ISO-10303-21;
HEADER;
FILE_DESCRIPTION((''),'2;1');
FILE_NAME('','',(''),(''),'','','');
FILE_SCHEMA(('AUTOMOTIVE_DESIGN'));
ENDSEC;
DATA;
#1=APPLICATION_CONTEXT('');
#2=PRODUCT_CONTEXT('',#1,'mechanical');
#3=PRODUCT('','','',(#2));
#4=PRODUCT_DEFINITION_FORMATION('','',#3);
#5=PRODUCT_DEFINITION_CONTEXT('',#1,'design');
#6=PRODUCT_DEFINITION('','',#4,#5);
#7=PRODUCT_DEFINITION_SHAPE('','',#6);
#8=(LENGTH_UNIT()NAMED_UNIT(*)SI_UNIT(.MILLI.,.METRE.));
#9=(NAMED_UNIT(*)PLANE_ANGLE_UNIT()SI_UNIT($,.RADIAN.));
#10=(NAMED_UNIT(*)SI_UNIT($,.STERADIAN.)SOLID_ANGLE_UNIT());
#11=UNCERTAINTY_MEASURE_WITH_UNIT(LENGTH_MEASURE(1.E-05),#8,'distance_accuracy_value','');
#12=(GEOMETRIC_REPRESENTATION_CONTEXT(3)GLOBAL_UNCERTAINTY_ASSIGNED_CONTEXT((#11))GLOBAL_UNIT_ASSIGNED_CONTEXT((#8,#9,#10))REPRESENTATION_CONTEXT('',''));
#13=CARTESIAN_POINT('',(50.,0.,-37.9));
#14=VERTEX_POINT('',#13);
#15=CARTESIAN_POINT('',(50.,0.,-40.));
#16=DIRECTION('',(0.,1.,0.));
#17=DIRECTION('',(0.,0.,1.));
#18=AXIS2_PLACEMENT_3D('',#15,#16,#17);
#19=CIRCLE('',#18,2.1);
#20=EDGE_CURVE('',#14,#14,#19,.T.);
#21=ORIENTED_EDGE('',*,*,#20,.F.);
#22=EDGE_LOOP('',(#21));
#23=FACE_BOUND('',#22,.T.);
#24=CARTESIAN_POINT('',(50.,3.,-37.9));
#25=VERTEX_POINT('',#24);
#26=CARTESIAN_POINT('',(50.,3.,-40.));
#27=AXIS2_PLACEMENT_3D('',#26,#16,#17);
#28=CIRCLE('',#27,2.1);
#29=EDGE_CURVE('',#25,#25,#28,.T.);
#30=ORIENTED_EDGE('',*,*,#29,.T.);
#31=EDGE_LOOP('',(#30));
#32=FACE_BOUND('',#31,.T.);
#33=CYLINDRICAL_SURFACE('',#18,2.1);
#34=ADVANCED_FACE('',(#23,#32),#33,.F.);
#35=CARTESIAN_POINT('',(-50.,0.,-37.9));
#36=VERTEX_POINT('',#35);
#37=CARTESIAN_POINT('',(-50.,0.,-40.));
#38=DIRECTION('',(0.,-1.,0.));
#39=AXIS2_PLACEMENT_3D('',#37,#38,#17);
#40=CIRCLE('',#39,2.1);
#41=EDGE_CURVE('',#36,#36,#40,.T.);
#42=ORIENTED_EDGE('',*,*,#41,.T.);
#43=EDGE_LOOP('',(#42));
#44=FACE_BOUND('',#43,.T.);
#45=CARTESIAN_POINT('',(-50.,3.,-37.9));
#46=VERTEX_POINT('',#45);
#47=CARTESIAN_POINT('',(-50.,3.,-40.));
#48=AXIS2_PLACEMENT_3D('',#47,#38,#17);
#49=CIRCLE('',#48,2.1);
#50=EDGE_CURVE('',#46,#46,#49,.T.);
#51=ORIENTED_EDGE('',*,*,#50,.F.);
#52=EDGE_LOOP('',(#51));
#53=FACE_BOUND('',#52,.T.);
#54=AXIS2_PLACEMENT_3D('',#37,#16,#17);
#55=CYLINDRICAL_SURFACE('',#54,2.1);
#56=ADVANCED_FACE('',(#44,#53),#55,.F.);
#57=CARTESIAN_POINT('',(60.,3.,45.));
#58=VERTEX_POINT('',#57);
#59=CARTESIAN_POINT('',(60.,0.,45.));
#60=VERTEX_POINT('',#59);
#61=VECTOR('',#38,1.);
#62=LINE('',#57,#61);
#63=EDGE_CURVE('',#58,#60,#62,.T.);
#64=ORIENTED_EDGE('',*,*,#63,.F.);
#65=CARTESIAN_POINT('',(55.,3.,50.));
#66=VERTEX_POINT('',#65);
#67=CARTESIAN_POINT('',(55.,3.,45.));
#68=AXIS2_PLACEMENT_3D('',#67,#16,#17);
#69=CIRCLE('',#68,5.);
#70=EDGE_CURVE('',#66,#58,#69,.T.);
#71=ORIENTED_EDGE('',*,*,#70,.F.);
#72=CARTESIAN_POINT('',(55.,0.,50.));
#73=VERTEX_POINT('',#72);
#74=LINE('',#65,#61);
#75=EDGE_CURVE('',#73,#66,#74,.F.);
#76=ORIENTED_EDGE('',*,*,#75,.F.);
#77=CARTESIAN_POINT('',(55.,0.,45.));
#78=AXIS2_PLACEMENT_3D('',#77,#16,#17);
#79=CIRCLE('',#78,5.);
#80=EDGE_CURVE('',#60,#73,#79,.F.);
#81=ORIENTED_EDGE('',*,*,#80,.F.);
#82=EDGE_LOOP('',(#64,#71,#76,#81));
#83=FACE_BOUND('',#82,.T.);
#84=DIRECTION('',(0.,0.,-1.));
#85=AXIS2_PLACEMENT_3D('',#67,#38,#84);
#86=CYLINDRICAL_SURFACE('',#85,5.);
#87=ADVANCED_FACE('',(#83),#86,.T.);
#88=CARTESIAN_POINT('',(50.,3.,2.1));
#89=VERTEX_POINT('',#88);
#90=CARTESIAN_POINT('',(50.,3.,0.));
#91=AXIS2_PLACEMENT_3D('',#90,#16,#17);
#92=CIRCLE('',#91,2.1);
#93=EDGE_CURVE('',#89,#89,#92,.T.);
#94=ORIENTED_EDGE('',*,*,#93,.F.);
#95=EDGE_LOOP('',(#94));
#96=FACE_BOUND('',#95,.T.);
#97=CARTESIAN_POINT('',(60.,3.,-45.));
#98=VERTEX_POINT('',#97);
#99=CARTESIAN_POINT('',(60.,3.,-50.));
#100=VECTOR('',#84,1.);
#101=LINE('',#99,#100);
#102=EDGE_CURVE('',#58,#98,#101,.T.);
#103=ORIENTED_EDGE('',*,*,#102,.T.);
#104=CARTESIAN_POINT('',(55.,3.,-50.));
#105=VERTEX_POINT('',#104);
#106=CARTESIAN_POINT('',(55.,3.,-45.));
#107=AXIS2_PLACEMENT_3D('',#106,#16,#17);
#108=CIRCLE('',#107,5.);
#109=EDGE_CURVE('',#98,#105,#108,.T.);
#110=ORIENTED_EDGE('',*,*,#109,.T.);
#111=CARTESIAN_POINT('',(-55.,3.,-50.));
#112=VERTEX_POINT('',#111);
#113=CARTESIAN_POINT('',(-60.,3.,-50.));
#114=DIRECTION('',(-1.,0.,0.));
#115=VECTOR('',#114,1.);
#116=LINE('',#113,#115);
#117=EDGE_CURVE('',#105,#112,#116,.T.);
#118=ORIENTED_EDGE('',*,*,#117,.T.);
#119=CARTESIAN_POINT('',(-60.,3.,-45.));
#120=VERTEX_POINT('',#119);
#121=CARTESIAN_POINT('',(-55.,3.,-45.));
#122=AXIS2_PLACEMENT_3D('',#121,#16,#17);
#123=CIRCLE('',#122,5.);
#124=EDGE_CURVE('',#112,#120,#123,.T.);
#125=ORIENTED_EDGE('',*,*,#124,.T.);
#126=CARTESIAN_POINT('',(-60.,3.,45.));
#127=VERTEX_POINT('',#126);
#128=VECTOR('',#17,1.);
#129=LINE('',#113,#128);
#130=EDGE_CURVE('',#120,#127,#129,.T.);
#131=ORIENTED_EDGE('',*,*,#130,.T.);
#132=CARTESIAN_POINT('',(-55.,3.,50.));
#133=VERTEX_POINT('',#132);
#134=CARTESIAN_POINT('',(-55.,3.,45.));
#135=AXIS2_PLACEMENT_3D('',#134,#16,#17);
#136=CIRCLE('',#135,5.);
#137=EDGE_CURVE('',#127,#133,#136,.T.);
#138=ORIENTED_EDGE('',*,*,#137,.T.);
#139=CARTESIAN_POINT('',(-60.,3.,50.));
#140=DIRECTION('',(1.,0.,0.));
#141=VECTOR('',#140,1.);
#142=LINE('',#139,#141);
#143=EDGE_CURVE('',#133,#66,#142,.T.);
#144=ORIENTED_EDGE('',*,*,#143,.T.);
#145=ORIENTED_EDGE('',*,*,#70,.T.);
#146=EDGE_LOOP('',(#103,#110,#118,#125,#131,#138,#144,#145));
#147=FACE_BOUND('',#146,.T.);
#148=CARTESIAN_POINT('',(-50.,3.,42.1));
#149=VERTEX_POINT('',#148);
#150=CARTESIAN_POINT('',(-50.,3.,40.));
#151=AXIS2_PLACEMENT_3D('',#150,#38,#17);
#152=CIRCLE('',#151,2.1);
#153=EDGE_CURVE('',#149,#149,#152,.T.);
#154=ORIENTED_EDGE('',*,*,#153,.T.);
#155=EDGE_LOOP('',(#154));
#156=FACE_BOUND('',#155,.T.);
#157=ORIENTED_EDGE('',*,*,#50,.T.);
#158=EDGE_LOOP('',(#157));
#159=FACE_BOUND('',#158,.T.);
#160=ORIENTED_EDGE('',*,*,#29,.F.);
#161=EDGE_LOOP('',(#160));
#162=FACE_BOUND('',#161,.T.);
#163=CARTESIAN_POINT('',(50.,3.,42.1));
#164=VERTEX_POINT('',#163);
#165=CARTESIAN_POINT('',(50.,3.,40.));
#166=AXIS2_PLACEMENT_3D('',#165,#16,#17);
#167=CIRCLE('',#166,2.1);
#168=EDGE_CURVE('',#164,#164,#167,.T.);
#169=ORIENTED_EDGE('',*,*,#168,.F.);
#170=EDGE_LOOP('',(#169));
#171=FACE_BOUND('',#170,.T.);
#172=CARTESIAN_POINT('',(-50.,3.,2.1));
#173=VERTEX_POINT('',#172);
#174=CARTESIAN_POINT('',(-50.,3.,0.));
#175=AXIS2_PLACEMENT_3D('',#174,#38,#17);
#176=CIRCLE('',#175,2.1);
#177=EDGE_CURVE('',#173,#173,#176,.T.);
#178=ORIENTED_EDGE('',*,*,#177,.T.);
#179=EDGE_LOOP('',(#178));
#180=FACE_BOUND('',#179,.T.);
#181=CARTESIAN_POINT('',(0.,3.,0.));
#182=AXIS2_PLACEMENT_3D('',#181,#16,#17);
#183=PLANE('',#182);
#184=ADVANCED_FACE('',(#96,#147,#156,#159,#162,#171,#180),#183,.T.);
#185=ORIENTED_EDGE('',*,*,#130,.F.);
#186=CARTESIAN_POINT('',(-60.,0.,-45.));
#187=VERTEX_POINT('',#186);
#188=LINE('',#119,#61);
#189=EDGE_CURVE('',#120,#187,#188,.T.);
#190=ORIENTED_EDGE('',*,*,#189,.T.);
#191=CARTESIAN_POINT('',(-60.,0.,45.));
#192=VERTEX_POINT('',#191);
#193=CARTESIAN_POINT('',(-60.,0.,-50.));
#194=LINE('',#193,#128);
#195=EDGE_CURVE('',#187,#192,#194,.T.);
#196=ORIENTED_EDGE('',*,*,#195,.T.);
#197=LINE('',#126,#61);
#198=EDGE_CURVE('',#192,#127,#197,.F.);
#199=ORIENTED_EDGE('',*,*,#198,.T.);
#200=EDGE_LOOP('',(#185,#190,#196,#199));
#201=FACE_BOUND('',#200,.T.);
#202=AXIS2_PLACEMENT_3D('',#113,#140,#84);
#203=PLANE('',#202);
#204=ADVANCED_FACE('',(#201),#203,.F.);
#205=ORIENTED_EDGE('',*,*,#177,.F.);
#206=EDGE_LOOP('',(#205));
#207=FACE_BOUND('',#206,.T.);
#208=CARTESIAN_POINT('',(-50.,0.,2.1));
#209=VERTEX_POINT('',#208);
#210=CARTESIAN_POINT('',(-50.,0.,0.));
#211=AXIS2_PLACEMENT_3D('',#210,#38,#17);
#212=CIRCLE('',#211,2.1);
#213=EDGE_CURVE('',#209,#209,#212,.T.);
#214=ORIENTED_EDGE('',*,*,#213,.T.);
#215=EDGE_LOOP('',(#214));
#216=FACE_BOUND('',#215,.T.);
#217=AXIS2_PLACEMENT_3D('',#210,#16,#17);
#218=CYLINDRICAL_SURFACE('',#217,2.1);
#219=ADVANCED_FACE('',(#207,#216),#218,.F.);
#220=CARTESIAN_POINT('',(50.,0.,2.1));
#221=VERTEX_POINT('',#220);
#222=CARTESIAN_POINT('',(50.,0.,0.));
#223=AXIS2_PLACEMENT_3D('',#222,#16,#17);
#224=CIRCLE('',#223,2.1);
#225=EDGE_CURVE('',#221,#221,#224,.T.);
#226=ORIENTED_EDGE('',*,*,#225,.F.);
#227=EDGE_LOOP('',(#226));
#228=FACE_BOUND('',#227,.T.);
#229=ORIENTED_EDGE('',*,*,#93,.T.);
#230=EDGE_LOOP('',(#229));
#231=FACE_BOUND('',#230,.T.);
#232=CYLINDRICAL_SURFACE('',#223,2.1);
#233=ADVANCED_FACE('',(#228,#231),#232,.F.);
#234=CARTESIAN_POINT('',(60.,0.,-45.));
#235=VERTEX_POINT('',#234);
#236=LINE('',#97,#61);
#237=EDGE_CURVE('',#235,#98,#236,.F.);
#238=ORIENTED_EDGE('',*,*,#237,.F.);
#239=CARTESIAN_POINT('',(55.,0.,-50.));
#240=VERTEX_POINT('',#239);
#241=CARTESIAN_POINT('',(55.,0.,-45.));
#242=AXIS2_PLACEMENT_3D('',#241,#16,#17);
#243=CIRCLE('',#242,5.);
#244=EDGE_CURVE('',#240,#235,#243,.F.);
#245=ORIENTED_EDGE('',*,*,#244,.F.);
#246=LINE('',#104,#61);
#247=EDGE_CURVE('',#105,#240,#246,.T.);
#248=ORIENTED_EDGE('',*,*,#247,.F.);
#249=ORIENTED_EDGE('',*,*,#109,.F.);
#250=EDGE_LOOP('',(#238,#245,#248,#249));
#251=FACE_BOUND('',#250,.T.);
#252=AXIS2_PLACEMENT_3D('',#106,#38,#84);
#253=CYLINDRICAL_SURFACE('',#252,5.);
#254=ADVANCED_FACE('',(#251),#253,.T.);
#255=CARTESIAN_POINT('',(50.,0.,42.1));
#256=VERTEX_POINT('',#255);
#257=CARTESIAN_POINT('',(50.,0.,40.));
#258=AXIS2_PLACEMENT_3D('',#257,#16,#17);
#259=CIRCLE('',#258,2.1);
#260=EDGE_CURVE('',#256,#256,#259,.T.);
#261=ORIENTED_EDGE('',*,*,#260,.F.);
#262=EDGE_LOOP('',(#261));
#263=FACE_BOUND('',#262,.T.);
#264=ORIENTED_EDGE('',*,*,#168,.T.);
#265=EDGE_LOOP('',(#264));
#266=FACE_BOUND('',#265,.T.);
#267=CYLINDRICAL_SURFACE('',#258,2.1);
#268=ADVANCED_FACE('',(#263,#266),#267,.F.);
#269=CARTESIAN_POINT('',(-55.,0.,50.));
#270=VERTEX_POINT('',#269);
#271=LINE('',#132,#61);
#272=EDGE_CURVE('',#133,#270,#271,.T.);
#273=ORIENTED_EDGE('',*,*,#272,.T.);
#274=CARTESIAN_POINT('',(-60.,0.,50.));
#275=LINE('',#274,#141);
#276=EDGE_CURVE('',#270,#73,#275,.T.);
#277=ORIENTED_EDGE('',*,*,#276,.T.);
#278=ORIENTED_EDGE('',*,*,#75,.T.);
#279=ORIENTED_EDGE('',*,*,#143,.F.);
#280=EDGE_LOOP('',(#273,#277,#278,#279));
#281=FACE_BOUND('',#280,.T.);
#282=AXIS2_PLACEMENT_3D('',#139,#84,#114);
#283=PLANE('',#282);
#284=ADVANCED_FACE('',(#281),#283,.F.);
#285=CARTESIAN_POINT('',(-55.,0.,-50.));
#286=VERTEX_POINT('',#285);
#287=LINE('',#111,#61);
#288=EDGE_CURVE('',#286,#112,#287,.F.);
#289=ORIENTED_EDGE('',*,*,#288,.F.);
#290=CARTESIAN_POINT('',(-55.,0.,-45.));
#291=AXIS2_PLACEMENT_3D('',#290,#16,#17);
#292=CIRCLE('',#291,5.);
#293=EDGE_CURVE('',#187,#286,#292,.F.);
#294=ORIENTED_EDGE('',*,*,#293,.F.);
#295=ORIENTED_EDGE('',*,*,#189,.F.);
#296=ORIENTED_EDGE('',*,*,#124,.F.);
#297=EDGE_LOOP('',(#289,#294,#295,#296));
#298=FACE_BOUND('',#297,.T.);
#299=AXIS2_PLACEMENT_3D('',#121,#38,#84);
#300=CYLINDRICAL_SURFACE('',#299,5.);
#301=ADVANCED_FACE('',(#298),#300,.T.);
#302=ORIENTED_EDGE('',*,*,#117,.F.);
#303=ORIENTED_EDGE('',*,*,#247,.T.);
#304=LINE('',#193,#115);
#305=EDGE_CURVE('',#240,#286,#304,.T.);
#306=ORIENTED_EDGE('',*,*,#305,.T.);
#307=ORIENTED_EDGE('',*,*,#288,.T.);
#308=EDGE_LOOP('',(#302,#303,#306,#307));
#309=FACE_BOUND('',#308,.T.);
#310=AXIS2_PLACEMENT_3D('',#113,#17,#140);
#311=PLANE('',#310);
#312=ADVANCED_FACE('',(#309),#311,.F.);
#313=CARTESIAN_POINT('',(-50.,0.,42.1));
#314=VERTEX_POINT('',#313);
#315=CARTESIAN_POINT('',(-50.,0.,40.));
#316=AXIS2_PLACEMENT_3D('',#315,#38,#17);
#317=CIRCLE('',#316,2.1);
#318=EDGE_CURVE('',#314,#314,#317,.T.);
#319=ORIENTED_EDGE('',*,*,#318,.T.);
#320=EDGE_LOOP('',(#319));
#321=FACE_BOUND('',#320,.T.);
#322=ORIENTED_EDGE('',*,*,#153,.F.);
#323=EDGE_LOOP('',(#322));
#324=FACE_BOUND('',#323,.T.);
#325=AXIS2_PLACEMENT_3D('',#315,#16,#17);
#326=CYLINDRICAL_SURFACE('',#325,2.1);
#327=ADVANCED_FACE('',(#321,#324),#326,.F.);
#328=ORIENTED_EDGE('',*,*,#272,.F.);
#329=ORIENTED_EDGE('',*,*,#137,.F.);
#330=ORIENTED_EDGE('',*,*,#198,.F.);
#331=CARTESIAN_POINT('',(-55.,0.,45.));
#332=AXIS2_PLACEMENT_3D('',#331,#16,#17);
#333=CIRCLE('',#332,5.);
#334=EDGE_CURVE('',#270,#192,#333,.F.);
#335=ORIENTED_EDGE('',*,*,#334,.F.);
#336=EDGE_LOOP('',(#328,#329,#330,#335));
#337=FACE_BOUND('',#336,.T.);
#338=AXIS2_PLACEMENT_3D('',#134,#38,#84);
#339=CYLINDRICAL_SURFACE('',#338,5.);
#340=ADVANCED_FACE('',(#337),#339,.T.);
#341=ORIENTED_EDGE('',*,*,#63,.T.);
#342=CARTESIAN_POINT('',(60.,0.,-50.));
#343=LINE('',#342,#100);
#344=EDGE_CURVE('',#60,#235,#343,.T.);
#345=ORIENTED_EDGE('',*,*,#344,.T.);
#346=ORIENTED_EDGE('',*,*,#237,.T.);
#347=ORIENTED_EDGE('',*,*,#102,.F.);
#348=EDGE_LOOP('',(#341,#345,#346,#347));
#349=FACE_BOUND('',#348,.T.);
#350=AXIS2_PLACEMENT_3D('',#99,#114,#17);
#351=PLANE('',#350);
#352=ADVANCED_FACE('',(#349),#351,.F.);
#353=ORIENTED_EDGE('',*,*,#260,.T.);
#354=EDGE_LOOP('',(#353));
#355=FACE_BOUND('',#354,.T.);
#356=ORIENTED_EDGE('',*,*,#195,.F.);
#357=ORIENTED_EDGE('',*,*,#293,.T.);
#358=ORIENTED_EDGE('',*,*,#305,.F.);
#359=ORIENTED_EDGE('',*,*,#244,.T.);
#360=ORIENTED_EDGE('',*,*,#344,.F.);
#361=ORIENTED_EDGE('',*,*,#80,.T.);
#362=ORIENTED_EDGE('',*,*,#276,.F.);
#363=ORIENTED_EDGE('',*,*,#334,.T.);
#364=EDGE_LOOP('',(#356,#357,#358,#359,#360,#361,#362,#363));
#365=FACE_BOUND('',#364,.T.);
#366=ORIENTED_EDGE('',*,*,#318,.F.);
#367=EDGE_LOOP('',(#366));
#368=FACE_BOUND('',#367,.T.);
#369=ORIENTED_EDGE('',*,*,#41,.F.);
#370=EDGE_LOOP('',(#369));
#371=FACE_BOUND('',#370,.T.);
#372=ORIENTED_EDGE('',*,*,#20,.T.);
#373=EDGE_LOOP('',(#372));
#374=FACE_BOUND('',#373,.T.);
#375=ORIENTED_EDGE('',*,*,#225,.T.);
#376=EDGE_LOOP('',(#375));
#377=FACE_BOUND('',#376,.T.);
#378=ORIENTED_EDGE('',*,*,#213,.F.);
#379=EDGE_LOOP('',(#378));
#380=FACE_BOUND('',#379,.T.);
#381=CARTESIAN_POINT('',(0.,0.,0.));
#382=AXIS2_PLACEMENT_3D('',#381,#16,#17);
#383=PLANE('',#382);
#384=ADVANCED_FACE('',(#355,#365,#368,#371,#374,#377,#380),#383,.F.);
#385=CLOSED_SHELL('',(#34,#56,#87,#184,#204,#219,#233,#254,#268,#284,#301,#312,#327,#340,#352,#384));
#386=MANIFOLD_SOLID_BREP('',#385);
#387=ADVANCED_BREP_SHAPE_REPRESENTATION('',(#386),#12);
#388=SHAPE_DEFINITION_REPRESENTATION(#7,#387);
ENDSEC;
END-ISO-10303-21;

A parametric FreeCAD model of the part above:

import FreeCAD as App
import Part
import Sketcher
from FreeCAD import Vector
Q = App.Units.Quantity


def edges_at(feature, points):
    """Names of the edges that pass closest to the given points."""
    edges = feature.Shape.Edges
    near = lambda p: min(range(len(edges)), key=lambda i: edges[i].distToShape(Part.Vertex(*p))[0])
    return sorted({f"Edge{near(p) + 1}" for p in points})

doc = App.newDocument("Part")
body = doc.addObject("PartDesign::Body", "Body")

# Sketch on XZ plane
sketch1 = body.newObject("Sketcher::SketchObject", "Sketch")
sketch1.AttachmentSupport = (doc.getObject("XZ_Plane"), [""])
sketch1.MapMode = "FlatFace"
sketch1.addGeometry([
    Part.LineSegment(Vector(-60, -50, 0), Vector(-60, 50, 0)),
    Part.LineSegment(Vector(-60, 50, 0), Vector(60, 50, 0)),
    Part.LineSegment(Vector(60, 50, 0), Vector(60, -50, 0)),
    Part.LineSegment(Vector(60, -50, 0), Vector(-60, -50, 0)),
], False)
sketch1.addConstraint([
    Sketcher.Constraint("Coincident", 0, 2, 1, 1),
    Sketcher.Constraint("Coincident", 1, 2, 2, 1),
    Sketcher.Constraint("Coincident", 2, 2, 3, 1),
    Sketcher.Constraint("Coincident", 3, 2, 0, 1),
    Sketcher.Constraint("Vertical", 0),
    Sketcher.Constraint("Horizontal", 1),
    Sketcher.Constraint("Vertical", 2),
    Sketcher.Constraint("Horizontal", 3),
    Sketcher.Constraint("Symmetric", 0, 2, 2, 2, -1, 1),
    Sketcher.Constraint("DistanceX", 1, 1, 1, 2, Q("120 mm")),
    Sketcher.Constraint("DistanceY", 0, 1, 0, 2, Q("100 mm")),
])
pad1 = body.newObject("PartDesign::Pad", "Pad")
pad1.Profile = sketch1
pad1.Length = 3
pad1.Reversed = True
doc.recompute()

fillet = body.newObject("PartDesign::Fillet", "Fillet")
fillet.Base = (pad1, edges_at(pad1, [
    (60, 1.5, 50),
    (-60, 1.5, 50),
    (-60, 1.5, -50),
    (60, 1.5, -50),
]))
fillet.Radius = 5

# Sketch on XZ plane
sketch2 = body.newObject("Sketcher::SketchObject", "Sketch001")
sketch2.AttachmentSupport = (doc.getObject("XZ_Plane"), [""])
sketch2.MapMode = "FlatFace"
sketch2.AttachmentOffset = App.Placement(Vector(0, 0, -3), App.Rotation())
sketch2.addGeometry(Part.Circle(Vector(50, -40, 0), Vector(0, 0, 1), 2.1), False)
sketch2.addConstraint([
    Sketcher.Constraint("Diameter", 0, Q("4.2 mm")),
    Sketcher.Constraint("DistanceX", -1, 1, 0, 3, Q("50 mm")),
    Sketcher.Constraint("DistanceY", 0, 3, -1, 1, Q("40 mm")),
])
pocket1 = body.newObject("PartDesign::Pocket", "Pocket")
pocket1.Profile = sketch2
pocket1.Type = "ThroughAll"
pocket1.Reversed = True
doc.recompute()

linearpattern = body.newObject("PartDesign::LinearPattern", "LinearPattern")
linearpattern.Originals = [pocket1]
linearpattern.Direction = (doc.getObject("Z_Axis"), [""])
linearpattern.Mode = "offset"
linearpattern.Offset = 40
linearpattern.Occurrences = 3
body.Tip = linearpattern
doc.recompute()

mirrored = body.newObject("PartDesign::Mirrored", "Mirrored")
mirrored.Originals = [pocket1]
mirrored.MirrorPlane = (doc.getObject("YZ_Plane"), [""])
body.Tip = mirrored

# Sketch on XZ plane
sketch3 = body.newObject("Sketcher::SketchObject", "Sketch002")
sketch3.AttachmentSupport = (doc.getObject("XZ_Plane"), [""])
sketch3.MapMode = "FlatFace"
sketch3.AttachmentOffset = App.Placement(Vector(0, 0, -3), App.Rotation())
sketch3.addGeometry(Part.Circle(Vector(-50, 0, 0), Vector(0, 0, 1), 2.1), False)
sketch3.addConstraint([
    Sketcher.Constraint("PointOnObject", 0, 3, -1),
    Sketcher.Constraint("Diameter", 0, Q("4.2 mm")),
    Sketcher.Constraint("DistanceX", 0, 3, -1, 1, Q("50 mm")),
])
pocket2 = body.newObject("PartDesign::Pocket", "Pocket001")
pocket2.Profile = sketch3
pocket2.Type = "ThroughAll"
pocket2.Reversed = True

# Sketch on XZ plane
sketch4 = body.newObject("Sketcher::SketchObject", "Sketch003")
sketch4.AttachmentSupport = (doc.getObject("XZ_Plane"), [""])
sketch4.MapMode = "FlatFace"
sketch4.AttachmentOffset = App.Placement(Vector(0, 0, -3), App.Rotation())
sketch4.addGeometry(Part.Circle(Vector(-50, 40, 0), Vector(0, 0, 1), 2.1), False)
sketch4.addConstraint([
    Sketcher.Constraint("Diameter", 0, Q("4.2 mm")),
    Sketcher.Constraint("DistanceX", 0, 3, -1, 1, Q("50 mm")),
    Sketcher.Constraint("DistanceY", -1, 1, 0, 3, Q("40 mm")),
])
pocket3 = body.newObject("PartDesign::Pocket", "Pocket002")
pocket3.Profile = sketch4
pocket3.Type = "ThroughAll"
pocket3.Reversed = True

doc.recompute()
